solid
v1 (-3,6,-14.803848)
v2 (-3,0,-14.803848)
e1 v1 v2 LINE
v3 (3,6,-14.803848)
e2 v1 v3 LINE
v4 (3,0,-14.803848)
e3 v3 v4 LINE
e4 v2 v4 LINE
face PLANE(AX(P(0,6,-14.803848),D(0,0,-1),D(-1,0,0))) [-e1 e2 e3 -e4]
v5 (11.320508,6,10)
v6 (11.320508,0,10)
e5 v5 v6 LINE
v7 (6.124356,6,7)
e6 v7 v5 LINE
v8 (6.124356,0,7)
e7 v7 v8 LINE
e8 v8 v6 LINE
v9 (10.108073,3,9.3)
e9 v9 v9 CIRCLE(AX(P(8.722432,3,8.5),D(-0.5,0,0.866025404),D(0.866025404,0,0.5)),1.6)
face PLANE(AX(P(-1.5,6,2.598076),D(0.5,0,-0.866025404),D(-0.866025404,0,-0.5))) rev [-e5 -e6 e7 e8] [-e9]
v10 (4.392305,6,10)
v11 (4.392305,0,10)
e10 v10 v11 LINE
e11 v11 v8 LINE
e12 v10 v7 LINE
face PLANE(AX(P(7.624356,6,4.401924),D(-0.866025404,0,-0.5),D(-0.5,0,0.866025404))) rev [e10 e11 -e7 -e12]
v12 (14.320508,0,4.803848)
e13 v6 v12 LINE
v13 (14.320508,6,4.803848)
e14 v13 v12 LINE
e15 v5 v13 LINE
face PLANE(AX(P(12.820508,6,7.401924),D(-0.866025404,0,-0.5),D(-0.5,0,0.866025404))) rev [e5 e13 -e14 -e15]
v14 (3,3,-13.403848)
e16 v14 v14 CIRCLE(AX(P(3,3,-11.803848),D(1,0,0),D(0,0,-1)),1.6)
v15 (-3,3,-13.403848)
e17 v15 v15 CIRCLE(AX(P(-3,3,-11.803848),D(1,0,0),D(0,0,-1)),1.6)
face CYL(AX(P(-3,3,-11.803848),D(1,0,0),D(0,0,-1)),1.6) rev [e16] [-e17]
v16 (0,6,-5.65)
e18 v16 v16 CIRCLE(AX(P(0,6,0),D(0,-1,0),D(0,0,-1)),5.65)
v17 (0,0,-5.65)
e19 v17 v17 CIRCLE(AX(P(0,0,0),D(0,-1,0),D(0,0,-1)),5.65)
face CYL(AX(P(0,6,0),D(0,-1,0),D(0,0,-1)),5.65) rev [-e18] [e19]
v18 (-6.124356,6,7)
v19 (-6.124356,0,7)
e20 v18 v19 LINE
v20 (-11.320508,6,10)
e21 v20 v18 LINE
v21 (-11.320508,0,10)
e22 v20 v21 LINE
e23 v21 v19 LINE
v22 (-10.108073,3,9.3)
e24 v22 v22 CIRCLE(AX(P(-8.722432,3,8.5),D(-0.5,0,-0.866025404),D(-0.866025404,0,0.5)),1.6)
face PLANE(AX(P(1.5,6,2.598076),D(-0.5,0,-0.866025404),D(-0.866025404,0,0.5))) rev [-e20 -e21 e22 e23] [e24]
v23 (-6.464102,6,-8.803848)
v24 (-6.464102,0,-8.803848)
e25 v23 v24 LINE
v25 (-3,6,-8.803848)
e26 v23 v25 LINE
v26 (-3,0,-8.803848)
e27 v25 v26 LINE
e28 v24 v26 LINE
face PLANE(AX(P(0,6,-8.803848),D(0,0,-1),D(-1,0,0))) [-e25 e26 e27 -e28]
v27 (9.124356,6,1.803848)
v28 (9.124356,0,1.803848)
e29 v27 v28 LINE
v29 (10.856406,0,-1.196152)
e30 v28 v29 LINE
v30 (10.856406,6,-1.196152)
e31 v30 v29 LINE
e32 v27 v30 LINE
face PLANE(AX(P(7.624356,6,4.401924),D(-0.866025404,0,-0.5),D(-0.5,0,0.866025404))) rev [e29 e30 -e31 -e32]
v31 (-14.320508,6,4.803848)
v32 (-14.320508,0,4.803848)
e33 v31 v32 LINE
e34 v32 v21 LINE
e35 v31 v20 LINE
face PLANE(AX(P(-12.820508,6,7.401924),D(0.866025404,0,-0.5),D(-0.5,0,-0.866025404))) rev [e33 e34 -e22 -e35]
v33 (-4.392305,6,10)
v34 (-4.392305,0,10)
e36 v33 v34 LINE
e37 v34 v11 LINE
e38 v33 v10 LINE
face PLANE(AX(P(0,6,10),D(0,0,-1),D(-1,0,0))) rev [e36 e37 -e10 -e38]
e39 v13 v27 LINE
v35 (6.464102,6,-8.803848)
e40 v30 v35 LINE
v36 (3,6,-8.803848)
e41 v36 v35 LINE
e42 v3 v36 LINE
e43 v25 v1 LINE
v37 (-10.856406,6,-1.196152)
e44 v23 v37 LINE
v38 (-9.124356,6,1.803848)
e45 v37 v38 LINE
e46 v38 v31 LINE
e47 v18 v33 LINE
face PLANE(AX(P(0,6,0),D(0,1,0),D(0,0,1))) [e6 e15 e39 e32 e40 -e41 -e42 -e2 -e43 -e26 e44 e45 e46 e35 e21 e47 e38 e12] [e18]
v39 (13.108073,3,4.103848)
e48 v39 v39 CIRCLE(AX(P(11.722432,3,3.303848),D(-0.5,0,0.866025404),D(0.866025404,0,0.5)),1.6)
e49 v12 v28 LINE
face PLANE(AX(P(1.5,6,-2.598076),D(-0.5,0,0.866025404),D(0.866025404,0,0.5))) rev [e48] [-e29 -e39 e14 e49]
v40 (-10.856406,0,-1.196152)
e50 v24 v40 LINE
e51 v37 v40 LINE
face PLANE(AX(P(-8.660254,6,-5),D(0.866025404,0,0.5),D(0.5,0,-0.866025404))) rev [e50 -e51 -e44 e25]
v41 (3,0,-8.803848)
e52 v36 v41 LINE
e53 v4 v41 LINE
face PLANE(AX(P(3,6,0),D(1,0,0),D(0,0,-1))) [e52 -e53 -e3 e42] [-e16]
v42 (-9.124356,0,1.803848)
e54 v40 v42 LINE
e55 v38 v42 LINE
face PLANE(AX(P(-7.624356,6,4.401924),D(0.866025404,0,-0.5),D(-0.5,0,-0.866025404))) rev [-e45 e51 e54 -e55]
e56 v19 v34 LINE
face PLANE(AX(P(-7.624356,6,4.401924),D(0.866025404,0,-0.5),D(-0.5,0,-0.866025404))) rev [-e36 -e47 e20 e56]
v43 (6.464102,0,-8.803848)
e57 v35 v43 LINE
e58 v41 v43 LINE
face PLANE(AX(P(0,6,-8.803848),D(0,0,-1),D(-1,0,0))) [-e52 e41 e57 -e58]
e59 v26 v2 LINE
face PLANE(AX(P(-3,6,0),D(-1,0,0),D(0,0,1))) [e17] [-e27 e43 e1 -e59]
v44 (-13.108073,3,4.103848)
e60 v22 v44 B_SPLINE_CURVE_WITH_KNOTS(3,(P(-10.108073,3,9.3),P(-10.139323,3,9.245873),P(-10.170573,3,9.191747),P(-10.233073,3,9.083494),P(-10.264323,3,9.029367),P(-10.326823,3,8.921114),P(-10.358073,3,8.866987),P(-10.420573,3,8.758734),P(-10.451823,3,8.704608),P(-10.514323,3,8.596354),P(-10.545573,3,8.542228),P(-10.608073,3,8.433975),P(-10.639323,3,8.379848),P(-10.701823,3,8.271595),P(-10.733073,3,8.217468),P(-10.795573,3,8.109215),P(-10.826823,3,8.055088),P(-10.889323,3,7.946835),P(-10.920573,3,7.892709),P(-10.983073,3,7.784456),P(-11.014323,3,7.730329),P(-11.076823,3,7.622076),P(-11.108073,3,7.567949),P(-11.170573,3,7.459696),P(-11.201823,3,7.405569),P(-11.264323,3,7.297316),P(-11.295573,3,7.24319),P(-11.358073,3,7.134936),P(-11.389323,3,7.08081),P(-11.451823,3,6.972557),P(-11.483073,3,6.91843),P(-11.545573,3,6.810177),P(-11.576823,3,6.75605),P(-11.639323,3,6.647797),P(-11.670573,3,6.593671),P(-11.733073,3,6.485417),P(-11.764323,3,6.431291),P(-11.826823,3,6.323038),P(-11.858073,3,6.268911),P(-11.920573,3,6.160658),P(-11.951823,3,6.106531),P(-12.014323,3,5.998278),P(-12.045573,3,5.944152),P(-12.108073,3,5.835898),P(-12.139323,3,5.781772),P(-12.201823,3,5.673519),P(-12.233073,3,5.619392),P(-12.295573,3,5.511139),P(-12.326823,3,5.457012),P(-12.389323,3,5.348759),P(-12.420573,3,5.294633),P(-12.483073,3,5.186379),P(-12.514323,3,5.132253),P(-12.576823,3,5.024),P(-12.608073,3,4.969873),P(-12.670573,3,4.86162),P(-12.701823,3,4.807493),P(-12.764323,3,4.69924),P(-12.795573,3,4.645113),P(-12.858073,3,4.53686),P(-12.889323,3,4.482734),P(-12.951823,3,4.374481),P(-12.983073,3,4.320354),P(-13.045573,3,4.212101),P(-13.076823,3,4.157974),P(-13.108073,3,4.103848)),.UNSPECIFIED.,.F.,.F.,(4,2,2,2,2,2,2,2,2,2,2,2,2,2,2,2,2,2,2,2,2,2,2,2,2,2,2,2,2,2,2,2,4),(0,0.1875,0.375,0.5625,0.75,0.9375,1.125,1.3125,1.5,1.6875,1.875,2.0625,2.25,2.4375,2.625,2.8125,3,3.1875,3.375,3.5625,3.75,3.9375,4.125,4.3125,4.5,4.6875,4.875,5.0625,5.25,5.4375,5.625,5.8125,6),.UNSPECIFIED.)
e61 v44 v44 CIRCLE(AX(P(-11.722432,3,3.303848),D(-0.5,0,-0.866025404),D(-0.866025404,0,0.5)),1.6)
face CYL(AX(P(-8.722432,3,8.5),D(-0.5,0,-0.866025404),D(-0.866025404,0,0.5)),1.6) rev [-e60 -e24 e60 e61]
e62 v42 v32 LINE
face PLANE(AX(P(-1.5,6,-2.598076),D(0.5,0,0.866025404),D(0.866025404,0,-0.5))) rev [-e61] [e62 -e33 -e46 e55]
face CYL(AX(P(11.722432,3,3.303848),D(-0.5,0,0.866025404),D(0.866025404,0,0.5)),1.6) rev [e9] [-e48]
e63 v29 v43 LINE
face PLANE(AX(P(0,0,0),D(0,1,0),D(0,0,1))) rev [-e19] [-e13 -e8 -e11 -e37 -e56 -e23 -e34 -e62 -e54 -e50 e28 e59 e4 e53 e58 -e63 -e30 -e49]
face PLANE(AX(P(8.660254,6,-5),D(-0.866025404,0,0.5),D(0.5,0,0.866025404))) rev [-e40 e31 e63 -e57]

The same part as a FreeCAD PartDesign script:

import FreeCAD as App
import Part
import Sketcher

V = App.Vector
Q = App.Units.Quantity

doc = App.newDocument("Part")
body = doc.addObject("PartDesign::Body", "Body")

# Sketch on XZ plane
sketch1 = body.newObject("Sketcher::SketchObject", "Sketch")
sketch1.AttachmentSupport = (doc.getObject("XZ_Plane"), [""])
sketch1.MapMode = "FlatFace"
sketch1.addGeometry([
    Part.LineSegment(V(-6.464102, -8.803848, 0), V(-10.856406, -1.196152, 0)),  # 0
    Part.LineSegment(V(-10.856406, -1.196152, 0), V(-9.124356, 1.803848, 0)),  # 1
    Part.LineSegment(V(-9.124356, 1.803848, 0), V(-14.320508, 4.803848, 0)),  # 2
    Part.LineSegment(V(-14.320508, 4.803848, 0), V(-11.320508, 10, 0)),  # 3
    Part.LineSegment(V(-11.320508, 10, 0), V(-6.124356, 7, 0)),  # 4
    Part.LineSegment(V(-6.124356, 7, 0), V(-4.392305, 10, 0)),  # 5
    Part.LineSegment(V(-4.392305, 10, 0), V(4.392305, 10, 0)),  # 6
    Part.LineSegment(V(4.392305, 10, 0), V(6.124356, 7, 0)),  # 7
    Part.LineSegment(V(6.124356, 7, 0), V(11.320508, 10, 0)),  # 8
    Part.LineSegment(V(11.320508, 10, 0), V(14.320508, 4.803848, 0)),  # 9
    Part.LineSegment(V(14.320508, 4.803848, 0), V(9.124356, 1.803848, 0)),  # 10
    Part.LineSegment(V(9.124356, 1.803848, 0), V(10.856406, -1.196152, 0)),  # 11
    Part.LineSegment(V(10.856406, -1.196152, 0), V(6.464102, -8.803848, 0)),  # 12
    Part.LineSegment(V(6.464102, -8.803848, 0), V(3, -8.803848, 0)),  # 13
    Part.LineSegment(V(3, -8.803848, 0), V(3, -14.803848, 0)),  # 14
    Part.LineSegment(V(3, -14.803848, 0), V(-3, -14.803848, 0)),  # 15
    Part.LineSegment(V(-3, -14.803848, 0), V(-3, -8.803848, 0)),  # 16
    Part.LineSegment(V(-3, -8.803848, 0), V(-6.464102, -8.803848, 0)),  # 17
], False)
sketch1.addConstraint([
    Sketcher.Constraint("Coincident", 0, 2, 1, 1),
    Sketcher.Constraint("Coincident", 1, 2, 2, 1),
    Sketcher.Constraint("Coincident", 2, 2, 3, 1),
    Sketcher.Constraint("Coincident", 3, 2, 4, 1),
    Sketcher.Constraint("Coincident", 4, 2, 5, 1),
    Sketcher.Constraint("Coincident", 5, 2, 6, 1),
    Sketcher.Constraint("Coincident", 6, 2, 7, 1),
    Sketcher.Constraint("Coincident", 7, 2, 8, 1),
    Sketcher.Constraint("Coincident", 8, 2, 9, 1),
    Sketcher.Constraint("Coincident", 9, 2, 10, 1),
    Sketcher.Constraint("Coincident", 10, 2, 11, 1),
    Sketcher.Constraint("Coincident", 11, 2, 12, 1),
    Sketcher.Constraint("Coincident", 12, 2, 13, 1),
    Sketcher.Constraint("Coincident", 13, 2, 14, 1),
    Sketcher.Constraint("Coincident", 14, 2, 15, 1),
    Sketcher.Constraint("Coincident", 15, 2, 16, 1),
    Sketcher.Constraint("Coincident", 16, 2, 17, 1),
    Sketcher.Constraint("Coincident", 17, 2, 0, 1),
    Sketcher.Constraint("Horizontal", 6),
    Sketcher.Constraint("Horizontal", 13),
    Sketcher.Constraint("Vertical", 14),
    Sketcher.Constraint("Horizontal", 15),
    Sketcher.Constraint("Vertical", 16),
    Sketcher.Constraint("Horizontal", 17),
    Sketcher.Constraint("Symmetric", 4, 2, 7, 2, -2),
    Sketcher.Constraint("Symmetric", 3, 2, 8, 2, -2),
    Sketcher.Constraint("Symmetric", 2, 2, 9, 2, -2),
    Sketcher.Constraint("Symmetric", 1, 2, 10, 2, -2),
    Sketcher.Constraint("Symmetric", 0, 2, 11, 2, -2),
    Sketcher.Constraint("Symmetric", 13, 2, 16, 2, -2),
    Sketcher.Constraint("Perpendicular", 1, 2),
    Sketcher.Constraint("Perpendicular", 2, 3),
    Sketcher.Constraint("Perpendicular", 3, 4),
    Sketcher.Constraint("Perpendicular", 4, 5),
    Sketcher.Constraint("Parallel", 0, 7),
    Sketcher.Constraint("Perpendicular", 7, 8),
    Sketcher.Constraint("Parallel", 5, 12),
    Sketcher.Constraint("Horizontal", 3, 2, 5, 2),
    Sketcher.Constraint("Equal", 15, 14),
    Sketcher.Constraint("Equal", 2, 3),
    Sketcher.Constraint("Equal", 3, 4),
    Sketcher.Constraint("Equal", 1, 5),
    Sketcher.Constraint("DistanceX", 15, 2, 15, 1, Q("6 mm")),
    Sketcher.Constraint("Angle", 0, Q("120 deg")),
    Sketcher.Constraint("Distance", 2, Q("6 mm")),
    Sketcher.Constraint("DistanceY", -1, 1, 3, 2, Q("10 mm")),
    Sketcher.Constraint("DistanceX", 13, 2, 13, 1, Q("3.464102 mm")),
    Sketcher.Constraint("DistanceX", 6, 1, 6, 2, Q("8.78461 mm")),
])
pad1 = body.newObject("PartDesign::Pad", "Pad")
pad1.Profile = sketch1
pad1.Length = 6
pad1.Reversed = True

# Sketch on an angled plane
sketch2 = body.newObject("Sketcher::SketchObject", "Sketch001")
sketch2.Placement = App.Placement(V(-1.5, 0, -2.598076), App.Rotation(V(-0.866025404, 0, 0.5), V(0, 1, 0), V(-0.5, 0, -0.866025404), "ZXY"))
sketch2.addGeometry(Part.Circle(V(11.803848, 3, 0), V(0, 0, 1), 1.6), False)
sketch2.addConstraint([
    Sketcher.Constraint("Diameter", 0, Q("3.2 mm")),
    Sketcher.Constraint("DistanceY", -1, 1, 0, 3, Q("3 mm")),
    Sketcher.Constraint("DistanceX", -1, 1, 0, 3, Q("11.803848 mm")),
])
pocket1 = body.newObject("PartDesign::Pocket", "Pocket")
pocket1.Profile = sketch2
pocket1.Length = 6

# Sketch on YZ plane
sketch3 = body.newObject("Sketcher::SketchObject", "Sketch002")
sketch3.AttachmentSupport = (doc.getObject("YZ_Plane"), [""])
sketch3.MapMode = "FlatFace"
sketch3.AttachmentOffset = App.Placement(V(0, 0, 3), App.Rotation())
sketch3.addGeometry(Part.Circle(V(3, -11.803848, 0), V(0, 0, 1), 1.6), False)
sketch3.addConstraint([
    Sketcher.Constraint("Diameter", 0, Q("3.2 mm")),
    Sketcher.Constraint("DistanceX", -1, 1, 0, 3, Q("3 mm")),
    Sketcher.Constraint("DistanceY", 0, 3, -1, 1, Q("11.803848 mm")),
])
pocket2 = body.newObject("PartDesign::Pocket", "Pocket001")
pocket2.Profile = sketch3
pocket2.Length = 6

# Sketch on an angled plane
sketch4 = body.newObject("Sketcher::SketchObject", "Sketch003")
sketch4.Placement = App.Placement(V(-1.5, 0, 2.598076), App.Rotation(V(0.866025404, 0, 0.5), V(0, 1, 0), V(-0.5, 0, 0.866025404), "ZXY"))
sketch4.addGeometry(Part.Circle(V(11.803848, 3, 0), V(0, 0, 1), 1.6), False)
sketch4.addConstraint([
    Sketcher.Constraint("Diameter", 0, Q("3.2 mm")),
    Sketcher.Constraint("DistanceY", -1, 1, 0, 3, Q("3 mm")),
    Sketcher.Constraint("DistanceX", -1, 1, 0, 3, Q("11.803848 mm")),
])
pocket3 = body.newObject("PartDesign::Pocket", "Pocket002")
pocket3.Profile = sketch4
pocket3.Length = 6

# Sketch on XZ plane
sketch5 = body.newObject("Sketcher::SketchObject", "Sketch004")
sketch5.AttachmentSupport = (doc.getObject("XZ_Plane"), [""])
sketch5.MapMode = "FlatFace"
sketch5.addGeometry(Part.Circle(V(0, 0, 0), V(0, 0, 1), 5.65), False)
sketch5.addConstraint([
    Sketcher.Constraint("Coincident", 0, 3, -1, 1),
    Sketcher.Constraint("Diameter", 0, Q("11.3 mm")),
])
pocket4 = body.newObject("PartDesign::Pocket", "Pocket003")
pocket4.Profile = sketch5
pocket4.Length = 6

doc.recompute()
